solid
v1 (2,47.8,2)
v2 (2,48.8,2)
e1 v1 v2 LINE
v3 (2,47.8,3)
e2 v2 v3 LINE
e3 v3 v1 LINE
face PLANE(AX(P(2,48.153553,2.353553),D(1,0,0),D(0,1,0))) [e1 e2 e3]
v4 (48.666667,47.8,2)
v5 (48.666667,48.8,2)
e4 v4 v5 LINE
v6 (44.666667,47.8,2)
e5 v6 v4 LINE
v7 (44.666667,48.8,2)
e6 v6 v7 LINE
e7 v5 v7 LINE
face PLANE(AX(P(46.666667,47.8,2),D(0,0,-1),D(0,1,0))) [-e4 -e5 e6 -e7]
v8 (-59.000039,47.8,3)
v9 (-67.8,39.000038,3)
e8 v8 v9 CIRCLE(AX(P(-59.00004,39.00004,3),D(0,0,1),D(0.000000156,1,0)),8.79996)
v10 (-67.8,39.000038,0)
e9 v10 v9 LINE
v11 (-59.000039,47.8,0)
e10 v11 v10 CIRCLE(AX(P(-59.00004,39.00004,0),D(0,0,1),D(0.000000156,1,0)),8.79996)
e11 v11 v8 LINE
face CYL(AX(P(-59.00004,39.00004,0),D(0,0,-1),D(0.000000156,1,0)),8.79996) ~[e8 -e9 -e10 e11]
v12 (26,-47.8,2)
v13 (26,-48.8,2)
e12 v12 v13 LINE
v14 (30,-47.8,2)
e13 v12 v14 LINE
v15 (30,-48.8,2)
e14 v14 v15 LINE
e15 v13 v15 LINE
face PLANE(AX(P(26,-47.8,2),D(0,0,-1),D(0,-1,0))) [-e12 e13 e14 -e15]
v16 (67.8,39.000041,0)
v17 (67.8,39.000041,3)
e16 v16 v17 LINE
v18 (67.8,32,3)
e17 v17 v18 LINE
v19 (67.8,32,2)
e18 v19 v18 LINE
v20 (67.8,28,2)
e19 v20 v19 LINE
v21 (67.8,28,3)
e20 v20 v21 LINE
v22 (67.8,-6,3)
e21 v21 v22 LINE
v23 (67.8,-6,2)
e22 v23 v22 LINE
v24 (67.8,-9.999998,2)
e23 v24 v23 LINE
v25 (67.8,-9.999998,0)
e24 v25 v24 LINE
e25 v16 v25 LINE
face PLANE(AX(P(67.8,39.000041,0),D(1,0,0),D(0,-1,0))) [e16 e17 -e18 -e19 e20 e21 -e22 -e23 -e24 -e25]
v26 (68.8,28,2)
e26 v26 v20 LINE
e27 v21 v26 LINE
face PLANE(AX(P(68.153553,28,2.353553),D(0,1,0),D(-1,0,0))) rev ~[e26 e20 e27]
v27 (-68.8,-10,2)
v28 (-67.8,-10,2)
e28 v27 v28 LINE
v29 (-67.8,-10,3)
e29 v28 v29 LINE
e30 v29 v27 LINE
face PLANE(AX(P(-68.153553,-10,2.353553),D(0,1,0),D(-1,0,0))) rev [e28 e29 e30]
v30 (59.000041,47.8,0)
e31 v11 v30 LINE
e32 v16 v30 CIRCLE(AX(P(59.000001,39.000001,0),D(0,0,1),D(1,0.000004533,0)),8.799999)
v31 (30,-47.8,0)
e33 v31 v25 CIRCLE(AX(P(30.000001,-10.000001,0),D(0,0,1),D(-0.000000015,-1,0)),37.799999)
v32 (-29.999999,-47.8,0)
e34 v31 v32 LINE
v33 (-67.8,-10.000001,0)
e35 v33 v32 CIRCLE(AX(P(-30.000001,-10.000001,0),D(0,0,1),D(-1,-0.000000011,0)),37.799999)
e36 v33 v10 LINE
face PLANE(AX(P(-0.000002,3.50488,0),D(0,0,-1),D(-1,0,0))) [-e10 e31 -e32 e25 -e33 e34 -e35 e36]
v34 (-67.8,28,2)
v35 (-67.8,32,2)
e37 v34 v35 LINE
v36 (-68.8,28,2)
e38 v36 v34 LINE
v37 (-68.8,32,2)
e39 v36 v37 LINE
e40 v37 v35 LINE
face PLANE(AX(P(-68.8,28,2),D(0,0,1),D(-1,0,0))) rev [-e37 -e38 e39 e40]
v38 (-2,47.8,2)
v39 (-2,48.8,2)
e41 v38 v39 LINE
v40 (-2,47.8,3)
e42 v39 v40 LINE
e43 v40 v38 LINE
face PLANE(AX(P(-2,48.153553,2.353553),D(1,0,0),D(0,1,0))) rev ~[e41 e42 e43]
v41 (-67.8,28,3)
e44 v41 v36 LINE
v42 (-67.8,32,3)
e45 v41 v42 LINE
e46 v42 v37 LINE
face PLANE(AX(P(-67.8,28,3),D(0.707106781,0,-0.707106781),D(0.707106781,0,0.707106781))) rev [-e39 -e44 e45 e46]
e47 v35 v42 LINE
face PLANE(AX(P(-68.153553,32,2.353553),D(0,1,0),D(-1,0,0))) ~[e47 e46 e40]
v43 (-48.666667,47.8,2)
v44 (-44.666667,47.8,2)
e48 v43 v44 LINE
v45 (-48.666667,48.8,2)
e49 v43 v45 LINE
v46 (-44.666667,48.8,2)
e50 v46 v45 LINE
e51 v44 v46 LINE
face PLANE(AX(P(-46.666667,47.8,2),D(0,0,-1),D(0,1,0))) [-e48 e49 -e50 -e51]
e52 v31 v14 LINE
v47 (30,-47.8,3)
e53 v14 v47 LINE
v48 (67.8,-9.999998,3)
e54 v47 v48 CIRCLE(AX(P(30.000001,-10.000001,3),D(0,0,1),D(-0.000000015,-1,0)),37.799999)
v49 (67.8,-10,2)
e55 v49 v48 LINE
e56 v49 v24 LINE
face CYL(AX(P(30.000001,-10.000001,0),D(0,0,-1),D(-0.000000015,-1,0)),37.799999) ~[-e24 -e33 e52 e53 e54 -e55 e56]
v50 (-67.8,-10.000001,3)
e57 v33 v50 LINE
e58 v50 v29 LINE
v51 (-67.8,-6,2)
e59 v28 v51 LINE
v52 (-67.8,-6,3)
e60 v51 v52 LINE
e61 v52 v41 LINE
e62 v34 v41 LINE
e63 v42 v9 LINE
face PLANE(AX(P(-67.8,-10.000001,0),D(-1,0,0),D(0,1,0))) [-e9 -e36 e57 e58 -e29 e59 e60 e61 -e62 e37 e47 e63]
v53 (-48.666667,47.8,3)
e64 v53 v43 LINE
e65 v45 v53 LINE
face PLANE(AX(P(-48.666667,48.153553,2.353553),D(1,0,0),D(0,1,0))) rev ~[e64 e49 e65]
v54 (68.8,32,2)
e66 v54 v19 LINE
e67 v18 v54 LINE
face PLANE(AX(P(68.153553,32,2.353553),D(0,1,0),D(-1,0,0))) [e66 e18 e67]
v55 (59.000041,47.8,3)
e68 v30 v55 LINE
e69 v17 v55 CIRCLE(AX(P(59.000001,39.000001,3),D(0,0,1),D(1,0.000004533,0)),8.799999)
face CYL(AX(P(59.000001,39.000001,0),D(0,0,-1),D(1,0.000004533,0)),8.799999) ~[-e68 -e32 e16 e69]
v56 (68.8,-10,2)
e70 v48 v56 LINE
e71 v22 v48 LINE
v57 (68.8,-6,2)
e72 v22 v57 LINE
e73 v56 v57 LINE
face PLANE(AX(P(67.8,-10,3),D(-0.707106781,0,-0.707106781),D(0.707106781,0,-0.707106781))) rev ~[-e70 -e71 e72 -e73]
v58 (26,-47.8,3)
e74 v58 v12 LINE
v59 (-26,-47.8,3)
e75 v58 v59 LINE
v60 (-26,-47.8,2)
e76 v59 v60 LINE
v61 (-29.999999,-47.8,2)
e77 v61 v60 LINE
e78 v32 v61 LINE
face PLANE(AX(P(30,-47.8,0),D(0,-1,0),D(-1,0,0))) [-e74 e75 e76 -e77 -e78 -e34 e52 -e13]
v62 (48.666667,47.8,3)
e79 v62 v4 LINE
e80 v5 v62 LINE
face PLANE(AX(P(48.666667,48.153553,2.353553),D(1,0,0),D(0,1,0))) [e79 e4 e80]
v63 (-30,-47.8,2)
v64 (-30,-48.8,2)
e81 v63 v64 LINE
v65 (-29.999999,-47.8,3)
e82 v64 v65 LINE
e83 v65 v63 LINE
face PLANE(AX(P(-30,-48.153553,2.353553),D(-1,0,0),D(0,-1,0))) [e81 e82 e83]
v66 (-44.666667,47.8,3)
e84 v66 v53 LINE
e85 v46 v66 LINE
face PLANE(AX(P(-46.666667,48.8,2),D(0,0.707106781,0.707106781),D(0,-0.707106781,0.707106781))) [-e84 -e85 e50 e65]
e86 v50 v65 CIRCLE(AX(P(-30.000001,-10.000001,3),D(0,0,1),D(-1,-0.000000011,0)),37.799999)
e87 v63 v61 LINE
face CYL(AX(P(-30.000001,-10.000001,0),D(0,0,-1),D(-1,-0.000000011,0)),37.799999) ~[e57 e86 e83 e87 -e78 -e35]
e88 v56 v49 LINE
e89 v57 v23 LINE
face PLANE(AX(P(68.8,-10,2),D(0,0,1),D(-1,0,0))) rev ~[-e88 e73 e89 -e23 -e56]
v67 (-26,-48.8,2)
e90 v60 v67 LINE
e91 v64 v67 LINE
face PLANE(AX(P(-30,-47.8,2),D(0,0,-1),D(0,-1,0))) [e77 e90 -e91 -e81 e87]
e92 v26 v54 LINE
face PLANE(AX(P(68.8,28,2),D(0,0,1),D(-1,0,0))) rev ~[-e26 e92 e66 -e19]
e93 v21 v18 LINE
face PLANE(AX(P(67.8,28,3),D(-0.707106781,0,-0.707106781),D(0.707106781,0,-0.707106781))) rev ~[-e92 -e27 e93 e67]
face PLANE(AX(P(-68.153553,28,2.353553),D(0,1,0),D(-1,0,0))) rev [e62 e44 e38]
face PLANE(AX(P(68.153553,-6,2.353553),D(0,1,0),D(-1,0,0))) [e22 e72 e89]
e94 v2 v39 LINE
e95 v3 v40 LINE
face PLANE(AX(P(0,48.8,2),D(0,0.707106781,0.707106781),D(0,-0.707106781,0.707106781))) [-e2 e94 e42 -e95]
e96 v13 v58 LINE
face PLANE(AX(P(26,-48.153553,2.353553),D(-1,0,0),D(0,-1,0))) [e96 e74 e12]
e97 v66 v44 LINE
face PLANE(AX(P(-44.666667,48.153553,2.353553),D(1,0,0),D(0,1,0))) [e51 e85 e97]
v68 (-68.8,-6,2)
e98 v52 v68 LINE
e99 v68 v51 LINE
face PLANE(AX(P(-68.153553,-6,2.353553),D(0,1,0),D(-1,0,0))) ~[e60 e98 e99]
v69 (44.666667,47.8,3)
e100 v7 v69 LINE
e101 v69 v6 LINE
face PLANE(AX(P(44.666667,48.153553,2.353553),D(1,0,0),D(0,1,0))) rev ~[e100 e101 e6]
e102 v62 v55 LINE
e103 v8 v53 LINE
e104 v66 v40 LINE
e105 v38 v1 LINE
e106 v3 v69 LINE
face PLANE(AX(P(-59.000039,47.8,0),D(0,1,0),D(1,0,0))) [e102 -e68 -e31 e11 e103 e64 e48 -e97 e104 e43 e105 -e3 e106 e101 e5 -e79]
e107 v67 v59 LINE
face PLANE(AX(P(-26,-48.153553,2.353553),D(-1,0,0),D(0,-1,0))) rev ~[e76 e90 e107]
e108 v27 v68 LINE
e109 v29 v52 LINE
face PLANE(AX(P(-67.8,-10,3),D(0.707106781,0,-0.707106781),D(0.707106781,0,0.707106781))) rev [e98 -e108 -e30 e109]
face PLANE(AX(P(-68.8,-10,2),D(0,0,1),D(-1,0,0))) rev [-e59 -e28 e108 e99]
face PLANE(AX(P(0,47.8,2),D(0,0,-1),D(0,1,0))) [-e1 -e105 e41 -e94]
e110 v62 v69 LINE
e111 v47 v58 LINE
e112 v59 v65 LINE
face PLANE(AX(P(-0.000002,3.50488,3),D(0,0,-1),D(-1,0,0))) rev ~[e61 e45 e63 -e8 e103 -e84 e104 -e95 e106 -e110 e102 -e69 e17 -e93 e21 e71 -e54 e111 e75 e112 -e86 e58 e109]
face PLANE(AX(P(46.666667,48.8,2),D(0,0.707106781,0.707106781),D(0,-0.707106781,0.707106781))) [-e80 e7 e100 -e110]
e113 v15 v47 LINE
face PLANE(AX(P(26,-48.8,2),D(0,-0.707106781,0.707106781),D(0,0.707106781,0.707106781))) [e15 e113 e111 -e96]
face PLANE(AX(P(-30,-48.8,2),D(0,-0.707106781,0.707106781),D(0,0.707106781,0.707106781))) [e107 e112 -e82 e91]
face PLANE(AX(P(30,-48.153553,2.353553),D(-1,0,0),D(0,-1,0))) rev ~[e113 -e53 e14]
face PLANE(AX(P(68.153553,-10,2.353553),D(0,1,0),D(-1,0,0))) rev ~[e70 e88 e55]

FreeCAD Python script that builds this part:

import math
import FreeCAD as App
import Part
import Sketcher
from FreeCAD import Vector
Q = App.Units.Quantity

doc = App.newDocument("Part")
body = doc.addObject("PartDesign::Body", "Body")

sketch1 = body.newObject("Sketcher::SketchObject", "Sketch")
sketch1.AttachmentSupport = (doc.getObject("XY_Plane"), [""])
sketch1.MapMode = "FlatFace"
sketch1.addGeometry([
    Part.LineSegment(Vector(-68, 39, 0), Vector(-68, -10, 0)),
    Part.ArcOfCircle(Part.Circle(Vector(-30, -10, 0), Vector(0, 0, 1), 38), math.radians(-180), math.radians(-90)),
    Part.LineSegment(Vector(-30, -48, 0), Vector(30, -48, 0)),
    Part.ArcOfCircle(Part.Circle(Vector(30, -10, 0), Vector(0, 0, 1), 38), math.radians(-90), math.radians(0)),
    Part.LineSegment(Vector(68, -10, 0), Vector(68, 39, 0)),
    Part.ArcOfCircle(Part.Circle(Vector(59, 39, 0), Vector(0, 0, 1), 9), math.radians(0), math.radians(90)),
    Part.LineSegment(Vector(59, 48, 0), Vector(-59, 48, 0)),
    Part.ArcOfCircle(Part.Circle(Vector(-59, 39, 0), Vector(0, 0, 1), 9), math.radians(90), math.radians(180)),
], False)
sketch1.addConstraint([
    Sketcher.Constraint("Tangent", 0, 2, 1, 1),
    Sketcher.Constraint("Tangent", 1, 2, 2, 1),
    Sketcher.Constraint("Tangent", 2, 2, 3, 1),
    Sketcher.Constraint("Tangent", 3, 2, 4, 1),
    Sketcher.Constraint("Coincident", 4, 2, 5, 1),
    Sketcher.Constraint("Coincident", 5, 2, 6, 1),
    Sketcher.Constraint("Tangent", 6, 2, 7, 1),
    Sketcher.Constraint("Tangent", 7, 2, 0, 1),
    Sketcher.Constraint("Vertical", 0),
    Sketcher.Constraint("Horizontal", 2),
    Sketcher.Constraint("Vertical", 4),
    Sketcher.Constraint("Horizontal", 6),
    Sketcher.Constraint("Equal", 1, 3),
    Sketcher.Constraint("Symmetric", 4, 2, 7, 2, -2),
    Sketcher.Constraint("Radius", 1, Q("37.799999 mm")),
    Sketcher.Constraint("Radius", 5, Q("8.799999 mm")),
    Sketcher.Constraint("DistanceX", 2, 1, 2, 2, Q("59.999999 mm")),
    Sketcher.Constraint("DistanceY", 1, 3, -1, 1, Q("10.000001 mm")),
    Sketcher.Constraint("DistanceY", -1, 1, 5, 3, Q("39.000001 mm")),
    Sketcher.Constraint("Radius", 7, Q("8.79996 mm")),
    Sketcher.Constraint("DistanceX", 6, 2, 6, 1, Q("118.00008 mm")),
])
pad1 = body.newObject("PartDesign::Pad", "Pad")
pad1.Profile = sketch1
pad1.Length = 3

sketch2 = body.newObject("Sketcher::SketchObject", "Sketch001")
sketch2.AttachmentSupport = (doc.getObject("YZ_Plane"), [""])
sketch2.MapMode = "FlatFace"
sketch2.addGeometry([
    Part.LineSegment(Vector(47.8, 3, 0), Vector(47.8, 2, 0)),
    Part.LineSegment(Vector(47.8, 2, 0), Vector(48.8, 2, 0)),
    Part.LineSegment(Vector(48.8, 2, 0), Vector(47.8, 3, 0)),
], False)
sketch2.addConstraint([
    Sketcher.Constraint("Coincident", 0, 2, 1, 1),
    Sketcher.Constraint("Coincident", 1, 2, 2, 1),
    Sketcher.Constraint("Coincident", 2, 2, 0, 1),
    Sketcher.Constraint("Vertical", 0),
    Sketcher.Constraint("Horizontal", 1),
    Sketcher.Constraint("Equal", 1, 0),
    Sketcher.Constraint("DistanceX", 1, 1, 1, 2, Q("1 mm")),
    Sketcher.Constraint("DistanceY", -1, 1, 0, 2, Q("2 mm")),
    Sketcher.Constraint("DistanceX", -1, 1, 0, 2, Q("47.8 mm")),
])
pad2 = body.newObject("PartDesign::Pad", "Pad001")
pad2.Profile = sketch2
pad2.Length = 4
pad2.Midplane = True

sketch3 = body.newObject("Sketcher::SketchObject", "Sketch002")
sketch3.AttachmentSupport = (doc.getObject("YZ_Plane"), [""])
sketch3.MapMode = "FlatFace"
sketch3.AttachmentOffset = App.Placement(Vector(0, 0, 46.666667), App.Rotation())
sketch3.addGeometry([
    Part.LineSegment(Vector(47.8, 3, 0), Vector(47.8, 2, 0)),
    Part.LineSegment(Vector(47.8, 2, 0), Vector(48.8, 2, 0)),
    Part.LineSegment(Vector(48.8, 2, 0), Vector(47.8, 3, 0)),
], False)
sketch3.addConstraint([
    Sketcher.Constraint("Coincident", 0, 2, 1, 1),
    Sketcher.Constraint("Coincident", 1, 2, 2, 1),
    Sketcher.Constraint("Coincident", 2, 2, 0, 1),
    Sketcher.Constraint("Vertical", 0),
    Sketcher.Constraint("Horizontal", 1),
    Sketcher.Constraint("Equal", 1, 0),
    Sketcher.Constraint("DistanceX", 1, 1, 1, 2, Q("1 mm")),
    Sketcher.Constraint("DistanceY", -1, 1, 0, 2, Q("2 mm")),
    Sketcher.Constraint("DistanceX", -1, 1, 0, 2, Q("47.8 mm")),
])
pad3 = body.newObject("PartDesign::Pad", "Pad002")
pad3.Profile = sketch3
pad3.Length = 4
pad3.Midplane = True
doc.recompute()

linearpattern = body.newObject("PartDesign::LinearPattern", "LinearPattern")
linearpattern.Originals = [pad2, pad3]
linearpattern.Direction = (doc.getObject("X_Axis"), [""])
linearpattern.Mode = "offset"
linearpattern.Offset = 46.666667
linearpattern.Occurrences = 2
linearpattern.Reversed = True
body.Tip = linearpattern

sketch4 = body.newObject("Sketcher::SketchObject", "Sketch003")
sketch4.AttachmentSupport = (doc.getObject("YZ_Plane"), [""])
sketch4.MapMode = "FlatFace"
sketch4.AttachmentOffset = App.Placement(Vector(0, 0, -30), App.Rotation())
sketch4.addGeometry([
    Part.LineSegment(Vector(-47.8, 2, 0), Vector(-47.8, 3, 0)),
    Part.LineSegment(Vector(-47.8, 3, 0), Vector(-48.8, 2, 0)),
    Part.LineSegment(Vector(-48.8, 2, 0), Vector(-47.8, 2, 0)),
], False)
sketch4.addConstraint([
    Sketcher.Constraint("Coincident", 0, 2, 1, 1),
    Sketcher.Constraint("Coincident", 1, 2, 2, 1),
    Sketcher.Constraint("Coincident", 2, 2, 0, 1),
    Sketcher.Constraint("Vertical", 0),
    Sketcher.Constraint("Horizontal", 2),
    Sketcher.Constraint("Equal", 2, 0),
    Sketcher.Constraint("DistanceX", 2, 1, 2, 2, Q("1 mm")),
    Sketcher.Constraint("DistanceY", -1, 1, 0, 2, Q("3 mm")),
    Sketcher.Constraint("DistanceX", 0, 2, -1, 1, Q("47.8 mm")),
])
pad4 = body.newObject("PartDesign::Pad", "Pad003")
pad4.Profile = sketch4
pad4.Length = 4
doc.recompute()

linearpattern2 = body.newObject("PartDesign::LinearPattern", "LinearPattern001")
linearpattern2.Originals = [pad4]
linearpattern2.Direction = (doc.getObject("X_Axis"), [""])
linearpattern2.Mode = "offset"
linearpattern2.Offset = 56
linearpattern2.Occurrences = 2
body.Tip = linearpattern2

sketch5 = body.newObject("Sketcher::SketchObject", "Sketch004")
sketch5.AttachmentSupport = (doc.getObject("XZ_Plane"), [""])
sketch5.MapMode = "FlatFace"
sketch5.AttachmentOffset = App.Placement(Vector(0, 0, 10), App.Rotation())
sketch5.addGeometry([
    Part.LineSegment(Vector(67.8, 2, 0), Vector(68.8, 2, 0)),
    Part.LineSegment(Vector(68.8, 2, 0), Vector(67.8, 3, 0)),
    Part.LineSegment(Vector(67.8, 3, 0), Vector(67.8, 2, 0)),
], False)
sketch5.addConstraint([
    Sketcher.Constraint("Coincident", 0, 2, 1, 1),
    Sketcher.Constraint("Coincident", 1, 2, 2, 1),
    Sketcher.Constraint("Coincident", 2, 2, 0, 1),
    Sketcher.Constraint("Horizontal", 0),
    Sketcher.Constraint("Vertical", 2),
    Sketcher.Constraint("Equal", 0, 2),
    Sketcher.Constraint("DistanceX", 0, 1, 0, 2, Q("1 mm")),
    Sketcher.Constraint("DistanceY", -1, 1, 0, 2, Q("2 mm")),
    Sketcher.Constraint("DistanceX", -1, 1, 0, 2, Q("68.8 mm")),
])
pad5 = body.newObject("PartDesign::Pad", "Pad004")
pad5.Profile = sketch5
pad5.Length = 4
pad5.Reversed = True

sketch6 = body.newObject("Sketcher::SketchObject", "Sketch005")
sketch6.AttachmentSupport = (doc.getObject("XZ_Plane"), [""])
sketch6.MapMode = "FlatFace"
sketch6.AttachmentOffset = App.Placement(Vector(0, 0, -28), App.Rotation())
sketch6.addGeometry([
    Part.LineSegment(Vector(67.8, 2, 0), Vector(68.8, 2, 0)),
    Part.LineSegment(Vector(68.8, 2, 0), Vector(67.8, 3, 0)),
    Part.LineSegment(Vector(67.8, 3, 0), Vector(67.8, 2, 0)),
], False)
sketch6.addConstraint([
    Sketcher.Constraint("Coincident", 0, 2, 1, 1),
    Sketcher.Constraint("Coincident", 1, 2, 2, 1),
    Sketcher.Constraint("Coincident", 2, 2, 0, 1),
    Sketcher.Constraint("Horizontal", 0),
    Sketcher.Constraint("Vertical", 2),
    Sketcher.Constraint("Equal", 0, 2),
    Sketcher.Constraint("DistanceX", 0, 1, 0, 2, Q("1 mm")),
    Sketcher.Constraint("DistanceY", -1, 1, 0, 2, Q("2 mm")),
    Sketcher.Constraint("DistanceX", -1, 1, 0, 2, Q("68.8 mm")),
])
pad6 = body.newObject("PartDesign::Pad", "Pad005")
pad6.Profile = sketch6
pad6.Length = 4
pad6.Reversed = True
doc.recompute()

mirrored = body.newObject("PartDesign::Mirrored", "Mirrored")
mirrored.Originals = [pad5, pad6]
mirrored.MirrorPlane = (doc.getObject("YZ_Plane"), [""])
body.Tip = mirrored

doc.recompute()
